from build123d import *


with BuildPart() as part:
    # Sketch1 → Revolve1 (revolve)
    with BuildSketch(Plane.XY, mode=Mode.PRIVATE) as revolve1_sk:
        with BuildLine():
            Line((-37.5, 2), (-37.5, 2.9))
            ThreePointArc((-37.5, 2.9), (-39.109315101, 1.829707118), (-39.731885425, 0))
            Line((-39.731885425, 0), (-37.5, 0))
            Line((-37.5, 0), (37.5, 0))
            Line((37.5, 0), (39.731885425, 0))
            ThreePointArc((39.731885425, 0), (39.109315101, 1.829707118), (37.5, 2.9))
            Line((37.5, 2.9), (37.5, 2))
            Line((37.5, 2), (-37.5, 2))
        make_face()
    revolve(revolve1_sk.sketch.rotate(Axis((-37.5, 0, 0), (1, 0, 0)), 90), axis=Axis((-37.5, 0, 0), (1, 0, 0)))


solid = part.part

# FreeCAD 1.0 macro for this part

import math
import FreeCAD as App
import Part
import Sketcher
from FreeCAD import Vector
Q = App.Units.Quantity

doc = App.newDocument("Part")
params = doc.addObject("Spreadsheet::Sheet", "Params")
for row, (alias, value) in enumerate([
    ("sketch1_radius", "3 mm"),
    ("sketch1_width", "75 mm"),
    ("sketch1_height", "0.9 mm"),
    ("revolution_angle", "360 deg"),
], start=1):
    params.set(f"A{row}", alias)
    params.set(f"B{row}", "=" + value)
    params.setAlias(f"B{row}", alias)

body = doc.addObject("PartDesign::Body", "Body")

sketch1 = body.newObject("Sketcher::SketchObject", "Sketch")
sketch1.AttachmentSupport = (doc.getObject("XY_Plane"), [""])
sketch1.MapMode = "FlatFace"
sketch1.addGeometry(Part.LineSegment(Vector(-37.5, 2, 0), Vector(-37.5, 2.9, 0)), False)
sketch1.addGeometry(Part.ArcOfCircle(Part.Circle(Vector(-36.7, 0, 0), Vector(0, 0, 1), 3), math.radians(105), math.radians(180)), False)
sketch1.addGeometry(Part.LineSegment(Vector(-39.7, 0, 0), Vector(39.7, 0, 0)), False)
sketch1.addGeometry(Part.ArcOfCircle(Part.Circle(Vector(36.7, 0, 0), Vector(0, 0, 1), 3), math.radians(0), math.radians(75)), False)
sketch1.addGeometry(Part.LineSegment(Vector(37.5, 2.9, 0), Vector(37.5, 2, 0)), False)
sketch1.addGeometry(Part.LineSegment(Vector(37.5, 2, 0), Vector(-37.5, 2, 0)), False)
sketch1.addConstraint(Sketcher.Constraint("Coincident", 0, 2, 1, 1))
sketch1.addConstraint(Sketcher.Constraint("Coincident", 1, 2, 2, 1))
sketch1.addConstraint(Sketcher.Constraint("Coincident", 2, 2, 3, 1))
sketch1.addConstraint(Sketcher.Constraint("Coincident", 3, 2, 4, 1))
sketch1.addConstraint(Sketcher.Constraint("Coincident", 4, 2, 5, 1))
sketch1.addConstraint(Sketcher.Constraint("Coincident", 5, 2, 0, 1))
sketch1.addConstraint(Sketcher.Constraint("Vertical", 0))
sketch1.addConstraint(Sketcher.Constraint("Horizontal", 2))
sketch1.addConstraint(Sketcher.Constraint("Vertical", 4))
sketch1.addConstraint(Sketcher.Constraint("Horizontal", 5))
sketch1.addConstraint(Sketcher.Constraint("Equal", 1, 3))
sketch1.addConstraint(Sketcher.Constraint("Symmetric", 1, 3, 3, 3, -1, 1))
sketch1.addConstraint(Sketcher.Constraint("Symmetric", 0, 2, 3, 2, -2))
sketch1.addConstraint(Sketcher.Constraint("PointOnObject", 1, 2, -1))
sketch1.addConstraint(Sketcher.Constraint("Radius", 1, Q("3 mm")))
sketch1.addConstraint(Sketcher.Constraint("DistanceX", 5, 2, 5, 1, Q("75 mm")))
sketch1.addConstraint(Sketcher.Constraint("DistanceY", 0, 1, 0, 2, Q("0.9 mm")))
sketch1.addConstraint(Sketcher.Constraint("DistanceY", -1, 1, 4, 2, Q("2 mm")))
sketch1.setExpression("Constraints[14]", "Params.sketch1_radius")
sketch1.setExpression("Constraints[15]", "Params.sketch1_width")
sketch1.setExpression("Constraints[16]", "Params.sketch1_height")
revolution = body.newObject("PartDesign::Revolution", "Revolution")
revolution.Profile = sketch1
revolution.ReferenceAxis = (sketch1, ["H_Axis"])
revolution.setExpression("Angle", "Params.revolution_angle")

doc.recompute()
